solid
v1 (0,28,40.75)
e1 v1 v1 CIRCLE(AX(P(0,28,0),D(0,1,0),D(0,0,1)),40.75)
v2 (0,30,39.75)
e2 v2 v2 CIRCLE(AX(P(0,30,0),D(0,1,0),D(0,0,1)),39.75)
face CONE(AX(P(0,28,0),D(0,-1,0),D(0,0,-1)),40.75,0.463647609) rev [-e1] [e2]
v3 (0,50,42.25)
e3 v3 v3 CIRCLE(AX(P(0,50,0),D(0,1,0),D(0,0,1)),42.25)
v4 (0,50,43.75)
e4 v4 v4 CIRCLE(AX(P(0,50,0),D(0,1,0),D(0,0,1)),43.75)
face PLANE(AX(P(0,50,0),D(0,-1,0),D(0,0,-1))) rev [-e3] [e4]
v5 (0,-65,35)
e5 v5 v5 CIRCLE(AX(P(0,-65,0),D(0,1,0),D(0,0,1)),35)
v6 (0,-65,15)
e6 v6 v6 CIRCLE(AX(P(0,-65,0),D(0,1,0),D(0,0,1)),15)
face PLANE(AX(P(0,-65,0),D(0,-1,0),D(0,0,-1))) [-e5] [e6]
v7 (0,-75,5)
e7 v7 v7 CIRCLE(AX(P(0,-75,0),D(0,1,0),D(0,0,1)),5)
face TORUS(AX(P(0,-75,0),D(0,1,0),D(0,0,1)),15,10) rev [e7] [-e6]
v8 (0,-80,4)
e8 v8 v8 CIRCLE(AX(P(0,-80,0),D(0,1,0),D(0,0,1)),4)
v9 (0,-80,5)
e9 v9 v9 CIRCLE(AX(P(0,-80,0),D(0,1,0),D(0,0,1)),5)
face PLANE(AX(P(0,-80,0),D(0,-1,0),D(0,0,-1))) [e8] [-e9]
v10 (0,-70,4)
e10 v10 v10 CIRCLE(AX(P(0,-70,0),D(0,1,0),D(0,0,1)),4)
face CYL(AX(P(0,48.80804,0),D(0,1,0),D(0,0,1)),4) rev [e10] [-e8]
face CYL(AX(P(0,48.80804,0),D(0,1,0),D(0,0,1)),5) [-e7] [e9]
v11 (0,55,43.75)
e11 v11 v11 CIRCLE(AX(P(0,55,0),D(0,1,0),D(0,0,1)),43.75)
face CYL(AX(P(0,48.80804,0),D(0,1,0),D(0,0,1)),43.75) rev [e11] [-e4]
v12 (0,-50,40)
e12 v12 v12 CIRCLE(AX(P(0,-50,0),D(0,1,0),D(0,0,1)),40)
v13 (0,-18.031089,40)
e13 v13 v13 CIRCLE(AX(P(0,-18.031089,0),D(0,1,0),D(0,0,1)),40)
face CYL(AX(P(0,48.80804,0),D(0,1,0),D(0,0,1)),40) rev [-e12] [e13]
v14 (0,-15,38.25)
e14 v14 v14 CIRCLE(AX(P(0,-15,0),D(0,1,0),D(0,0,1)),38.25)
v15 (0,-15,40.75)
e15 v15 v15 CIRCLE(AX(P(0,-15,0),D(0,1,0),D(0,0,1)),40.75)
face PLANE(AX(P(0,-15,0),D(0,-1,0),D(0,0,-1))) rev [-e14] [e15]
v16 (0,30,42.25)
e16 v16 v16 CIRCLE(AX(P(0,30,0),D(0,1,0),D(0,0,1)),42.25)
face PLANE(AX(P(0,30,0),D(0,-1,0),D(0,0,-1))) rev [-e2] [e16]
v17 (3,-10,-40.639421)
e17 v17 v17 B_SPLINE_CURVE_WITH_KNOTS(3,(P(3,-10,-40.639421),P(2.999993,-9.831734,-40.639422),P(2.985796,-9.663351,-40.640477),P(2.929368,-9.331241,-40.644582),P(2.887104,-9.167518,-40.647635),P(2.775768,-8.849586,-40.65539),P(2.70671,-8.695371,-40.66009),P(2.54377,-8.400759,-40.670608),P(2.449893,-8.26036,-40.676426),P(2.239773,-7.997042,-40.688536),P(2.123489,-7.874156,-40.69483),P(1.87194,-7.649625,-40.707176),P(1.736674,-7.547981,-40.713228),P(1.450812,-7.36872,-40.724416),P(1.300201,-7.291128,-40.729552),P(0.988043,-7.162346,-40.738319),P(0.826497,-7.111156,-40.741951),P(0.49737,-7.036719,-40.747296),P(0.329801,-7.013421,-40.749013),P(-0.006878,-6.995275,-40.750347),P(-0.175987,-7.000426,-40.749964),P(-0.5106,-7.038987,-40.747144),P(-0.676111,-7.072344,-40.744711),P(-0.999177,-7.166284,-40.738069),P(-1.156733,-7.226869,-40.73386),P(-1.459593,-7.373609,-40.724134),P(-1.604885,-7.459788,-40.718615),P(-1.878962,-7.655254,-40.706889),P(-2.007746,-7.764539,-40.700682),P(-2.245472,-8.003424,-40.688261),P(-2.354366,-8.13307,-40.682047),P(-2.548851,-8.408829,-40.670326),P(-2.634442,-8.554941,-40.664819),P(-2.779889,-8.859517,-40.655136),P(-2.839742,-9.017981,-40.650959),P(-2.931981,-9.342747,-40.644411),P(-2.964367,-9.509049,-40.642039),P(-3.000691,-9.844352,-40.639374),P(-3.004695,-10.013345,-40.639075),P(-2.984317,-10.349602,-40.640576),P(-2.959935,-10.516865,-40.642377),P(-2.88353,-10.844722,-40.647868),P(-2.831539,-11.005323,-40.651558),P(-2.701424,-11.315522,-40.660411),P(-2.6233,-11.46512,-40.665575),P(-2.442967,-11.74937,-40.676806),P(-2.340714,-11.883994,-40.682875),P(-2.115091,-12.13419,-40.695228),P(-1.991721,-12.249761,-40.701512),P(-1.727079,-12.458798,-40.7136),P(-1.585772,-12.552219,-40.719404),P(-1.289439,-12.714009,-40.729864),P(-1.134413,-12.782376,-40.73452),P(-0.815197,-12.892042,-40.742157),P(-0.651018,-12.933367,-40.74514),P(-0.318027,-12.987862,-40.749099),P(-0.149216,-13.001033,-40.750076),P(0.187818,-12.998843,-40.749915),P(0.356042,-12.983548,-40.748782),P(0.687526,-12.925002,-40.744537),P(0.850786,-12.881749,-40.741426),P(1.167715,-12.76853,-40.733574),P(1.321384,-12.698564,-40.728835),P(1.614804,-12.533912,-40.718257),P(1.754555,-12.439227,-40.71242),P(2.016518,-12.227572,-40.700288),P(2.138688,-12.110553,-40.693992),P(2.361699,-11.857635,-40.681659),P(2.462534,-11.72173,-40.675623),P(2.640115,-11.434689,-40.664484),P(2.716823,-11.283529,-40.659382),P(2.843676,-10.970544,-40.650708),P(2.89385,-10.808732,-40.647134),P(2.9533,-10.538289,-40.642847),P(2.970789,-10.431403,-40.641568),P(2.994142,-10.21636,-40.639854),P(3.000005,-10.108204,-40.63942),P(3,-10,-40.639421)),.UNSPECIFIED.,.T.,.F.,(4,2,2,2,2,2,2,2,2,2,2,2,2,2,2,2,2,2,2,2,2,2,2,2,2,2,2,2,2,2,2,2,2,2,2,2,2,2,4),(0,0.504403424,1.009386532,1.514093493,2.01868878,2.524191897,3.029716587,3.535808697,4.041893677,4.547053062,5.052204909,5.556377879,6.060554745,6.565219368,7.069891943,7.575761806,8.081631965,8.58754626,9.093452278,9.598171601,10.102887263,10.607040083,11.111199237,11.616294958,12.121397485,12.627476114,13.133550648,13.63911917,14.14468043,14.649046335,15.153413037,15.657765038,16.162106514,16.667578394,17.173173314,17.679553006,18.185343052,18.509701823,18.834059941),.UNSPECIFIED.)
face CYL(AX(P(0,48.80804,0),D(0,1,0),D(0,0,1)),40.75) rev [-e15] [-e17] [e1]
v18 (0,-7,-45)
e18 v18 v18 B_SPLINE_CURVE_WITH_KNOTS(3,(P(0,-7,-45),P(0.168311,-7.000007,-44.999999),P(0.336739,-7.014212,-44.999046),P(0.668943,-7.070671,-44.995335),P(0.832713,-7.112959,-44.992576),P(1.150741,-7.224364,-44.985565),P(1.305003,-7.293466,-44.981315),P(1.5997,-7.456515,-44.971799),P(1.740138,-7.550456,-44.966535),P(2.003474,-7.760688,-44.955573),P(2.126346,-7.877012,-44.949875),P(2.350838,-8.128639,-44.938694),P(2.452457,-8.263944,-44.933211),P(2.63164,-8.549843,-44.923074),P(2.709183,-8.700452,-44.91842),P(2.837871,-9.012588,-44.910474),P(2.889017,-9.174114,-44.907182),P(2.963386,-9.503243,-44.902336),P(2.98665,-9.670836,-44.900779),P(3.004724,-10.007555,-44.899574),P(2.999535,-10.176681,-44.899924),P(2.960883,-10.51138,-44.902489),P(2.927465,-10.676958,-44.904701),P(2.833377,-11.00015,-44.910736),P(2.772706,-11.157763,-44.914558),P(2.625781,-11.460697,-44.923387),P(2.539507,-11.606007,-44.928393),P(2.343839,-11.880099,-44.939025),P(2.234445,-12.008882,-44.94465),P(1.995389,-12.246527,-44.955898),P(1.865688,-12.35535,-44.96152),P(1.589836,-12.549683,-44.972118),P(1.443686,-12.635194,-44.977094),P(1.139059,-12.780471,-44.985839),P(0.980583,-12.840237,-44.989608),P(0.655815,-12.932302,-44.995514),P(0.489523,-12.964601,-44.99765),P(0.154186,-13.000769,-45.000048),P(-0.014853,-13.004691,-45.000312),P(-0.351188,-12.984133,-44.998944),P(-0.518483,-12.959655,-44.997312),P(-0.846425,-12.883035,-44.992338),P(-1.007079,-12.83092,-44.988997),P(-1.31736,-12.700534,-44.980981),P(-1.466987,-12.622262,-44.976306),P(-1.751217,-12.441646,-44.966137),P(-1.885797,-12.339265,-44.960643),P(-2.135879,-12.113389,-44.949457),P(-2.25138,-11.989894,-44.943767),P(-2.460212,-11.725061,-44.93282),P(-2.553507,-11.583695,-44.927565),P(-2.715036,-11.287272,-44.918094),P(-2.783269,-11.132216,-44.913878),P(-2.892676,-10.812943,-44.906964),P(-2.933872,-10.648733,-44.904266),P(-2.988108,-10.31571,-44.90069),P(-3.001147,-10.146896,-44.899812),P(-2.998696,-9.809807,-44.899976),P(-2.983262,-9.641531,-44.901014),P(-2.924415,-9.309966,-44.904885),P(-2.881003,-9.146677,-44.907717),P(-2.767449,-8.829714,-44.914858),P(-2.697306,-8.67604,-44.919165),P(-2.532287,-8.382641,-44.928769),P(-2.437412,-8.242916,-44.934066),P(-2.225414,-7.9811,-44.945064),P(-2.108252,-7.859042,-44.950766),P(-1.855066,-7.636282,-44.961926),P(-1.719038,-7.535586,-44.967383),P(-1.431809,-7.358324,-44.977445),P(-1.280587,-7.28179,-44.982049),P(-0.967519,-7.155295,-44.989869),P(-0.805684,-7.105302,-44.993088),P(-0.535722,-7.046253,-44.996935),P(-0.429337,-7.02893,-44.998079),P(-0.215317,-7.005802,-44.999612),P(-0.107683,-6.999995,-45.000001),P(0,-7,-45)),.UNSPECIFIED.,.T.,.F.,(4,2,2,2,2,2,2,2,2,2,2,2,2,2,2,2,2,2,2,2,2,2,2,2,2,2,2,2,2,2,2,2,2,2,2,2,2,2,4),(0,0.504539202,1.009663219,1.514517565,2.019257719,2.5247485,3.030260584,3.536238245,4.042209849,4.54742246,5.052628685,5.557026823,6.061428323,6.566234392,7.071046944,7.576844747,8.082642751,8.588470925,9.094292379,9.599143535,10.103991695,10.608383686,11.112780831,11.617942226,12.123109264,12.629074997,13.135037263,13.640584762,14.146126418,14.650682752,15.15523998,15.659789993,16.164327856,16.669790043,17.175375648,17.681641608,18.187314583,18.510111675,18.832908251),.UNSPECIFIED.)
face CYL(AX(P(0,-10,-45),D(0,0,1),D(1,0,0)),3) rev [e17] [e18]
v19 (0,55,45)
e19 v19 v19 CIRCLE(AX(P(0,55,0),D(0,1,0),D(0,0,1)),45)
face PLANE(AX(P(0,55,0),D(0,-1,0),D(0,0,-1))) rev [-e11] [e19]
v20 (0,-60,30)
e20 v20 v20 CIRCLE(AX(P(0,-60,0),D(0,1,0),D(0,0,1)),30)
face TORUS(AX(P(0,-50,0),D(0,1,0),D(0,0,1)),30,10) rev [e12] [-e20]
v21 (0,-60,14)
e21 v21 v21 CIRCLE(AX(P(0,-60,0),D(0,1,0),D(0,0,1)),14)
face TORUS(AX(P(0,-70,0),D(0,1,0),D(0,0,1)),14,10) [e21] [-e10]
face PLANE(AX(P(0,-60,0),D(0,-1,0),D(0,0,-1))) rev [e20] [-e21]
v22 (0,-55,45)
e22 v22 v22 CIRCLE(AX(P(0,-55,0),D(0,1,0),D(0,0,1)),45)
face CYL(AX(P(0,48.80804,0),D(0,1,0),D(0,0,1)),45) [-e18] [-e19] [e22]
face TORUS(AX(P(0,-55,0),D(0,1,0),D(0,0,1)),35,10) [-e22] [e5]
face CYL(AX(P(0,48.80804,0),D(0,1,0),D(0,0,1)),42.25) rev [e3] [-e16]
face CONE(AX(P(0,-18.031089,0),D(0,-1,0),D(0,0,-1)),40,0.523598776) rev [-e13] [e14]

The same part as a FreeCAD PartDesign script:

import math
import FreeCAD as App
import Part
import Sketcher

V = App.Vector
Q = App.Units.Quantity

doc = App.newDocument("Part")
params = doc.addObject("Spreadsheet::Sheet", "Params")
for row, (alias, value) in enumerate([
    ("sketch1_radius", "10 mm"),
    ("sketch1_width", "110 mm"),
    ("sketch1_width2", "5 mm"),
    ("sketch1_width3", "10 mm"),
    ("sketch1_width4", "43 mm"),
    ("revolution_angle", "360 deg"),
    ("sketch2_diameter", "6 mm"),
], start=1):
    params.set(f"A{row}", alias)
    params.set(f"B{row}", "=" + value)
    params.setAlias(f"B{row}", alias)

body = doc.addObject("PartDesign::Body", "Body")

# Sketch on YZ plane
sketch1 = body.newObject("Sketcher::SketchObject", "Sketch")
sketch1.AttachmentSupport = (doc.getObject("YZ_Plane"), [""])
sketch1.MapMode = "FlatFace"
sketch1.addGeometry(Part.LineSegment(V(55, 43.8, 0), V(55, 45, 0)), False)
sketch1.addGeometry(Part.LineSegment(V(55, 45, 0), V(-55, 45, 0)), False)
sketch1.addGeometry(Part.ArcOfCircle(Part.Circle(V(-55, 35, 0), V(0, 0, 1), 10), math.radians(90), math.radians(180)), False)
sketch1.addGeometry(Part.LineSegment(V(-65, 35, 0), V(-65, 15, 0)), False)
sketch1.addGeometry(Part.ArcOfCircle(Part.Circle(V(-75, 15, 0), V(0, 0, 1), 10), math.radians(-90), math.radians(0)), False)
sketch1.addGeometry(Part.LineSegment(V(-75, 5, 0), V(-80, 5, 0)), False)
sketch1.addGeometry(Part.LineSegment(V(-80, 5, 0), V(-80, 4, 0)), False)
sketch1.addGeometry(Part.LineSegment(V(-80, 4, 0), V(-70, 4, 0)), False)
sketch1.addGeometry(Part.ArcOfCircle(Part.Circle(V(-70, 14, 0), V(0, 0, 1), 10), math.radians(-90), math.radians(0)), False)
sketch1.addGeometry(Part.LineSegment(V(-60, 14, 0), V(-60, 30, 0)), False)
sketch1.addGeometry(Part.ArcOfCircle(Part.Circle(V(-50, 30, 0), V(0, 0, 1), 10), math.radians(90), math.radians(180)), False)
sketch1.addGeometry(Part.LineSegment(V(-50, 40, 0), V(-18, 40, 0)), False)
sketch1.addGeometry(Part.LineSegment(V(-18, 40, 0), V(-15, 38.2, 0)), False)
sketch1.addGeometry(Part.LineSegment(V(-15, 38.2, 0), V(-15, 40.8, 0)), False)
sketch1.addGeometry(Part.LineSegment(V(-15, 40.8, 0), V(28, 40.8, 0)), False)
sketch1.addGeometry(Part.LineSegment(V(28, 40.8, 0), V(30, 39.8, 0)), False)
sketch1.addGeometry(Part.LineSegment(V(30, 39.8, 0), V(30, 42.2, 0)), False)
sketch1.addGeometry(Part.LineSegment(V(30, 42.2, 0), V(50, 42.2, 0)), False)
sketch1.addGeometry(Part.LineSegment(V(50, 42.2, 0), V(50, 43.8, 0)), False)
sketch1.addGeometry(Part.LineSegment(V(50, 43.8, 0), V(55, 43.8, 0)), False)
sketch1.addConstraint(Sketcher.Constraint("Coincident", 0, 2, 1, 1))
sketch1.addConstraint(Sketcher.Constraint("Tangent", 1, 2, 2, 1))
sketch1.addConstraint(Sketcher.Constraint("Tangent", 2, 2, 3, 1))
sketch1.addConstraint(Sketcher.Constraint("Tangent", 3, 2, 4, 2))
sketch1.addConstraint(Sketcher.Constraint("Tangent", 4, 1, 5, 1))
sketch1.addConstraint(Sketcher.Constraint("Coincident", 5, 2, 6, 1))
sketch1.addConstraint(Sketcher.Constraint("Coincident", 6, 2, 7, 1))
sketch1.addConstraint(Sketcher.Constraint("Tangent", 7, 2, 8, 1))
sketch1.addConstraint(Sketcher.Constraint("Tangent", 8, 2, 9, 1))
sketch1.addConstraint(Sketcher.Constraint("Tangent", 9, 2, 10, 2))
sketch1.addConstraint(Sketcher.Constraint("Tangent", 10, 1, 11, 1))
sketch1.addConstraint(Sketcher.Constraint("Coincident", 11, 2, 12, 1))
sketch1.addConstraint(Sketcher.Constraint("Coincident", 12, 2, 13, 1))
sketch1.addConstraint(Sketcher.Constraint("Coincident", 13, 2, 14, 1))
sketch1.addConstraint(Sketcher.Constraint("Coincident", 14, 2, 15, 1))
sketch1.addConstraint(Sketcher.Constraint("Coincident", 15, 2, 16, 1))
sketch1.addConstraint(Sketcher.Constraint("Coincident", 16, 2, 17, 1))
sketch1.addConstraint(Sketcher.Constraint("Coincident", 17, 2, 18, 1))
sketch1.addConstraint(Sketcher.Constraint("Coincident", 18, 2, 19, 1))
sketch1.addConstraint(Sketcher.Constraint("Coincident", 19, 2, 0, 1))
sketch1.addConstraint(Sketcher.Constraint("Vertical", 0))
sketch1.addConstraint(Sketcher.Constraint("Horizontal", 1))
sketch1.addConstraint(Sketcher.Constraint("Vertical", 3))
sketch1.addConstraint(Sketcher.Constraint("Horizontal", 5))
sketch1.addConstraint(Sketcher.Constraint("Vertical", 6))
sketch1.addConstraint(Sketcher.Constraint("Horizontal", 7))
sketch1.addConstraint(Sketcher.Constraint("Vertical", 9))
sketch1.addConstraint(Sketcher.Constraint("Horizontal", 11))
sketch1.addConstraint(Sketcher.Constraint("Vertical", 13))
sketch1.addConstraint(Sketcher.Constraint("Horizontal", 14))
sketch1.addConstraint(Sketcher.Constraint("Vertical", 16))
sketch1.addConstraint(Sketcher.Constraint("Horizontal", 17))
sketch1.addConstraint(Sketcher.Constraint("Vertical", 18))
sketch1.addConstraint(Sketcher.Constraint("Horizontal", 19))
sketch1.addConstraint(Sketcher.Constraint("Equal", 2, 4))
sketch1.addConstraint(Sketcher.Constraint("Equal", 4, 8))
sketch1.addConstraint(Sketcher.Constraint("Equal", 8, 10))
sketch1.addConstraint(Sketcher.Constraint("Equal", 5, 19))
sketch1.addConstraint(Sketcher.Constraint("Equal", 17, 3))
sketch1.addConstraint(Sketcher.Constraint("Equal", 13, 16))
sketch1.addConstraint(Sketcher.Constraint("Radius", 2, Q("10 mm")))
sketch1.addConstraint(Sketcher.Constraint("DistanceX", 1, 2, 1, 1, Q("110 mm")))
sketch1.addConstraint(Sketcher.Constraint("DistanceX", 5, 2, 5, 1, Q("5 mm")))
sketch1.addConstraint(Sketcher.Constraint("DistanceX", 7, 1, 7, 2, Q("10 mm")))
sketch1.addConstraint(Sketcher.Constraint("DistanceX", 14, 1, 14, 2, Q("43 mm")))
sketch1.addConstraint(Sketcher.Constraint("DistanceX", 17, 1, 17, 2, Q("20 mm")))
sketch1.addConstraint(Sketcher.Constraint("DistanceY", 6, 2, 6, 1, Q("1 mm")))
sketch1.addConstraint(Sketcher.Constraint("DistanceY", 9, 1, 9, 2, Q("16 mm")))
sketch1.addConstraint(Sketcher.Constraint("Angle", 12, Q("-30 deg")))
sketch1.addConstraint(Sketcher.Constraint("DistanceY", 13, 1, 13, 2, Q("2.5 mm")))
sketch1.addConstraint(Sketcher.Constraint("DistanceY", 18, 1, 18, 2, Q("1.5 mm")))
sketch1.addConstraint(Sketcher.Constraint("DistanceX", 2, 3, -1, 1, Q("55 mm")))
sketch1.addConstraint(Sketcher.Constraint("DistanceY", -1, 1, 2, 3, Q("35 mm")))
sketch1.addConstraint(Sketcher.Constraint("DistanceX", 12, 2, -1, 1, Q("15 mm")))
sketch1.addConstraint(Sketcher.Constraint("DistanceY", 15, 2, 14, 2, Q("1 mm")))
sketch1.addConstraint(Sketcher.Constraint("Distance", 12, Q("3.5 mm")))
sketch1.setExpression("Constraints[40]", "Params.sketch1_radius")
sketch1.setExpression("Constraints[41]", "Params.sketch1_width")
sketch1.setExpression("Constraints[42]", "Params.sketch1_width2")
sketch1.setExpression("Constraints[43]", "Params.sketch1_width3")
sketch1.setExpression("Constraints[44]", "Params.sketch1_width4")
revolution = body.newObject("PartDesign::Revolution", "Revolution")
revolution.Profile = sketch1
revolution.ReferenceAxis = (sketch1, ["H_Axis"])
revolution.setExpression("Angle", "Params.revolution_angle")

# Sketch on XY plane
sketch2 = body.newObject("Sketcher::SketchObject", "Sketch001")
sketch2.AttachmentSupport = (doc.getObject("XY_Plane"), [""])
sketch2.MapMode = "FlatFace"
sketch2.addGeometry(Part.Circle(V(0, -10, 0), V(0, 0, 1), 3), False)
sketch2.addConstraint(Sketcher.Constraint("PointOnObject", 0, 3, -2))
sketch2.addConstraint(Sketcher.Constraint("Diameter", 0, Q("6 mm")))
sketch2.addConstraint(Sketcher.Constraint("DistanceY", 0, 3, -1, 1, Q("10 mm")))
sketch2.setExpression("Constraints[1]", "Params.sketch2_diameter")
pocket1 = body.newObject("PartDesign::Pocket", "Pocket")
pocket1.Profile = sketch2
pocket1.Type = "ThroughAll"

doc.recompute()
